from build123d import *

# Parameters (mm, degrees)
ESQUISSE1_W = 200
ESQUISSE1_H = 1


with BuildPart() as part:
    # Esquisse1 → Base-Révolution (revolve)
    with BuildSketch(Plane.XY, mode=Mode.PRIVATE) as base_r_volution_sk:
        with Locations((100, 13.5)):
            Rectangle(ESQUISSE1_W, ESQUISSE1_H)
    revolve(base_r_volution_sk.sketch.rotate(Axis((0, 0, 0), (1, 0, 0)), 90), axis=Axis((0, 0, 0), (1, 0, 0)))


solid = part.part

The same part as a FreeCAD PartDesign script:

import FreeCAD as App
import Part
import Sketcher

doc = App.newDocument("Part")
body = doc.addObject("PartDesign::Body", "Body")

# Sketch on XY plane
sketch1 = body.newObject("Sketcher::SketchObject", "Sketch")
sketch1.AttachmentSupport = (doc.getObject("XY_Plane"), [""])
sketch1.MapMode = "FlatFace"
sketch1.addGeometry([
    Part.LineSegment(App.Vector(0, 14, 0), App.Vector(0, 13, 0)),
    Part.LineSegment(App.Vector(0, 13, 0), App.Vector(200, 13, 0)),
    Part.LineSegment(App.Vector(200, 13, 0), App.Vector(200, 14, 0)),
    Part.LineSegment(App.Vector(200, 14, 0), App.Vector(0, 14, 0)),
], False)
sketch1.addConstraint([
    Sketcher.Constraint("Coincident", 0, 2, 1, 1),
    Sketcher.Constraint("Coincident", 1, 2, 2, 1),
    Sketcher.Constraint("Coincident", 2, 2, 3, 1),
    Sketcher.Constraint("Coincident", 3, 2, 0, 1),
    Sketcher.Constraint("Vertical", 0),
    Sketcher.Constraint("Horizontal", 1),
    Sketcher.Constraint("Vertical", 2),
    Sketcher.Constraint("Horizontal", 3),
    Sketcher.Constraint("PointOnObject", 0, 2, -2),
    Sketcher.Constraint("DistanceX", 1, 1, 1, 2, 200.0),
    Sketcher.Constraint("DistanceY", 0, 2, 0, 1, 1.0),
    Sketcher.Constraint("DistanceY", -1, 1, 0, 2, 13.0),
])
revolution = body.newObject("PartDesign::Revolution", "Revolution")
revolution.Profile = sketch1
revolution.ReferenceAxis = (sketch1, ["H_Axis"])
revolution.Angle = 360

doc.recompute()
